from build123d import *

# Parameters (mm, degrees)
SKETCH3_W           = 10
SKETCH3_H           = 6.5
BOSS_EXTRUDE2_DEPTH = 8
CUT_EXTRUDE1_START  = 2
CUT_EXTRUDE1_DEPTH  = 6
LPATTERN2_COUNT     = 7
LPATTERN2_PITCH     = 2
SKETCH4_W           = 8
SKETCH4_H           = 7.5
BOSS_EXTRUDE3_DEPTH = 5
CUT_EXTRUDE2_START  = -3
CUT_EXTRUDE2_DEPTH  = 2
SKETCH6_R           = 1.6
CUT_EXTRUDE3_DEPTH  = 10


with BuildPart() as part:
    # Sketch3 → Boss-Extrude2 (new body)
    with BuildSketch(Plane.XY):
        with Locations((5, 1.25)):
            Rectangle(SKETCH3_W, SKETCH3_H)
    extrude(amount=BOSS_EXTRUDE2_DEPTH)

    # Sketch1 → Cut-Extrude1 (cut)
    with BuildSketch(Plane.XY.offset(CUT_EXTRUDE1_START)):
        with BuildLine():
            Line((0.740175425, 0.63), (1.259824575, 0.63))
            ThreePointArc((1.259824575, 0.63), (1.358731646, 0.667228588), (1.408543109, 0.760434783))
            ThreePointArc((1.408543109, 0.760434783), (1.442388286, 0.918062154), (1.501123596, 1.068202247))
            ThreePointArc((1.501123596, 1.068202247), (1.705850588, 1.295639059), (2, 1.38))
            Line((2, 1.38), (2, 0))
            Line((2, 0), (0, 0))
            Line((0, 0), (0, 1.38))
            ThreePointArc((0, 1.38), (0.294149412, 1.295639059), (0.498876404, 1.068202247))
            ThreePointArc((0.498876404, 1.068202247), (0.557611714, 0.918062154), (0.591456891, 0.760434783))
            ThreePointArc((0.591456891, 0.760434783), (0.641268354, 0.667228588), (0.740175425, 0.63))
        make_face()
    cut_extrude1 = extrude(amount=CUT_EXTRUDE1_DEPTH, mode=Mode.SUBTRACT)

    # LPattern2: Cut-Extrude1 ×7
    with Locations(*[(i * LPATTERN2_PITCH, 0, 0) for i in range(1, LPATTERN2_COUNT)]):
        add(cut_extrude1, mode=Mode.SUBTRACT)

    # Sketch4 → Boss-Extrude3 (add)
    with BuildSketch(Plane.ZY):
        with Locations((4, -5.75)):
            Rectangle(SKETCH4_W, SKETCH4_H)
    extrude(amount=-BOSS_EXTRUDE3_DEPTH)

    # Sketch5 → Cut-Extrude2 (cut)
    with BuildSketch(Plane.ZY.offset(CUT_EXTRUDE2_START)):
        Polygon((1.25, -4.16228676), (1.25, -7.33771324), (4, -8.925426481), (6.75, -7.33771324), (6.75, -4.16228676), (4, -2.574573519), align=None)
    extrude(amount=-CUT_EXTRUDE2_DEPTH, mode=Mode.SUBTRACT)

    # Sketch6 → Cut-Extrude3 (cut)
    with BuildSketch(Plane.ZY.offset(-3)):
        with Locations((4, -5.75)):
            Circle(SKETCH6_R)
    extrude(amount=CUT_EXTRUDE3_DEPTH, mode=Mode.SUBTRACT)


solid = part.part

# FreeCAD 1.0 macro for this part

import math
import FreeCAD as App
import Part
import Sketcher
from FreeCAD import Vector
Q = App.Units.Quantity

doc = App.newDocument("Part")
body = doc.addObject("PartDesign::Body", "Body")

# Sketch on XY plane
sketch1 = body.newObject("Sketcher::SketchObject", "Sketch")
sketch1.AttachmentSupport = (doc.getObject("XY_Plane"), [""])
sketch1.MapMode = "FlatFace"
sketch1.addGeometry(Part.LineSegment(Vector(0, 4, 0), Vector(0, -2, 0)), False)
sketch1.addGeometry(Part.LineSegment(Vector(0, -2, 0), Vector(10, -2, 0)), False)
sketch1.addGeometry(Part.LineSegment(Vector(10, -2, 0), Vector(10, 4, 0)), False)
sketch1.addGeometry(Part.LineSegment(Vector(10, 4, 0), Vector(0, 4, 0)), False)
sketch1.addConstraint(Sketcher.Constraint("Coincident", 0, 2, 1, 1))
sketch1.addConstraint(Sketcher.Constraint("Coincident", 1, 2, 2, 1))
sketch1.addConstraint(Sketcher.Constraint("Coincident", 2, 2, 3, 1))
sketch1.addConstraint(Sketcher.Constraint("Coincident", 3, 2, 0, 1))
sketch1.addConstraint(Sketcher.Constraint("Vertical", 0))
sketch1.addConstraint(Sketcher.Constraint("Horizontal", 1))
sketch1.addConstraint(Sketcher.Constraint("Vertical", 2))
sketch1.addConstraint(Sketcher.Constraint("Horizontal", 3))
sketch1.addConstraint(Sketcher.Constraint("PointOnObject", 0, 2, -2))
sketch1.addConstraint(Sketcher.Constraint("DistanceX", 1, 1, 1, 2, 10.0))
sketch1.addConstraint(Sketcher.Constraint("DistanceY", 0, 2, 0, 1, 6.5))
sketch1.addConstraint(Sketcher.Constraint("DistanceY", 0, 2, -1, 1, 2.0))
pad1 = body.newObject("PartDesign::Pad", "Pad")
pad1.Profile = sketch1
pad1.Length = 8

# Sketch on XY plane
sketch2 = body.newObject("Sketcher::SketchObject", "Sketch001")
sketch2.AttachmentSupport = (doc.getObject("XY_Plane"), [""])
sketch2.MapMode = "FlatFace"
sketch2.AttachmentOffset = App.Placement(Vector(0, 0, 2), App.Rotation())
sketch2.addGeometry(Part.LineSegment(Vector(1.26, 0.63, 0), Vector(0.74, 0.63, 0)), False)
sketch2.addGeometry(Part.ArcOfCircle(Part.Circle(Vector(0.74, 0.78, 0), Vector(0, 0, 1), 0.15), math.radians(-173), math.radians(-90)), False)
sketch2.addGeometry(Part.ArcOfCircle(Part.Circle(Vector(-0.4, 0.63, 0), Vector(0, 0, 1), 1), math.radians(7.49), math.radians(25.99)), False)
sketch2.addGeometry(Part.ArcOfCircle(Part.Circle(Vector(0, 0.83, 0), Vector(0, 0, 1), 0.55), math.radians(26), math.radians(90)), False)
sketch2.addGeometry(Part.LineSegment(Vector(0, 1.38, 0), Vector(0, 0, 0)), False)
sketch2.addGeometry(Part.LineSegment(Vector(0, 0, 0), Vector(2, 0, 0)), False)
sketch2.addGeometry(Part.LineSegment(Vector(2, 0, 0), Vector(2, 1.38, 0)), False)
sketch2.addGeometry(Part.ArcOfCircle(Part.Circle(Vector(2, 0.83, 0), Vector(0, 0, 1), 0.55), math.radians(90), math.radians(154)), False)
sketch2.addGeometry(Part.ArcOfCircle(Part.Circle(Vector(2.4, 0.63, 0), Vector(0, 0, 1), 1), math.radians(154.01), math.radians(172.51)), False)
sketch2.addGeometry(Part.ArcOfCircle(Part.Circle(Vector(1.26, 0.78, 0), Vector(0, 0, 1), 0.15), math.radians(-90), math.radians(-7)), False)
sketch2.addConstraint(Sketcher.Constraint("Tangent", 0, 2, 1, 2))
sketch2.addConstraint(Sketcher.Constraint("Tangent", 1, 1, 2, 1))
sketch2.addConstraint(Sketcher.Constraint("Tangent", 2, 2, 3, 1))
sketch2.addConstraint(Sketcher.Constraint("Coincident", 3, 2, 4, 1))
sketch2.addConstraint(Sketcher.Constraint("Coincident", 4, 2, 5, 1))
sketch2.addConstraint(Sketcher.Constraint("Coincident", 5, 2, 6, 1))
sketch2.addConstraint(Sketcher.Constraint("Coincident", 6, 2, 7, 1))
sketch2.addConstraint(Sketcher.Constraint("Tangent", 7, 2, 8, 1))
sketch2.addConstraint(Sketcher.Constraint("Tangent", 8, 2, 9, 2))
sketch2.addConstraint(Sketcher.Constraint("Tangent", 9, 1, 0, 1))
sketch2.addConstraint(Sketcher.Constraint("Horizontal", 0))
sketch2.addConstraint(Sketcher.Constraint("Vertical", 4))
sketch2.addConstraint(Sketcher.Constraint("Horizontal", 5))
sketch2.addConstraint(Sketcher.Constraint("Vertical", 6))
sketch2.addConstraint(Sketcher.Constraint("Coincident", 4, 2, -1, 1))
sketch2.addConstraint(Sketcher.Constraint("Equal", 3, 7))
sketch2.addConstraint(Sketcher.Constraint("Equal", 2, 8))
sketch2.addConstraint(Sketcher.Constraint("Equal", 1, 9))
sketch2.addConstraint(Sketcher.Constraint("PointOnObject", 3, 3, -2))
sketch2.addConstraint(Sketcher.Constraint("Horizontal", 3, 3, 7, 3))
sketch2.addConstraint(Sketcher.Constraint("Horizontal", 2, 3, 8, 3))
sketch2.addConstraint(Sketcher.Constraint("Horizontal", 8, 3, 0, 2))
sketch2.addConstraint(Sketcher.Constraint("Vertical", 7, 3, 5, 2))
sketch2.addConstraint(Sketcher.Constraint("Radius", 2, 1.0))
sketch2.addConstraint(Sketcher.Constraint("DistanceX", 5, 1, 5, 2, 2.0))
sketch2.addConstraint(Sketcher.Constraint("Radius", 1, 0.15))
sketch2.addConstraint(Sketcher.Constraint("Radius", 3, 0.555))
sketch2.addConstraint(Sketcher.Constraint("DistanceY", 4, 2, 4, 1, 1.38))
sketch2.addConstraint(Sketcher.Constraint("DistanceX", 2, 3, -1, 1, 0.4))
pocket1 = body.newObject("PartDesign::Pocket", "Pocket")
pocket1.Profile = sketch2
pocket1.Length = 6
pocket1.Reversed = True
doc.recompute()

linearpattern = body.newObject("PartDesign::LinearPattern", "LinearPattern")
linearpattern.Originals = [pocket1]
linearpattern.Direction = (doc.getObject("X_Axis"), [""])
linearpattern.Mode = "offset"
linearpattern.Offset = 2
linearpattern.Occurrences = 7
body.Tip = linearpattern

# Sketch on YZ plane
sketch3 = body.newObject("Sketcher::SketchObject", "Sketch002")
sketch3.AttachmentSupport = (doc.getObject("YZ_Plane"), [""])
sketch3.MapMode = "FlatFace"
sketch3.addGeometry(Part.LineSegment(Vector(-2, 0, 0), Vector(-10, 0, 0)), False)
sketch3.addGeometry(Part.LineSegment(Vector(-10, 0, 0), Vector(-10, 8, 0)), False)
sketch3.addGeometry(Part.LineSegment(Vector(-10, 8, 0), Vector(-2, 8, 0)), False)
sketch3.addGeometry(Part.LineSegment(Vector(-2, 8, 0), Vector(-2, 0, 0)), False)
sketch3.addConstraint(Sketcher.Constraint("Coincident", 0, 2, 1, 1))
sketch3.addConstraint(Sketcher.Constraint("Coincident", 1, 2, 2, 1))
sketch3.addConstraint(Sketcher.Constraint("Coincident", 2, 2, 3, 1))
sketch3.addConstraint(Sketcher.Constraint("Coincident", 3, 2, 0, 1))
sketch3.addConstraint(Sketcher.Constraint("Horizontal", 0))
sketch3.addConstraint(Sketcher.Constraint("Vertical", 1))
sketch3.addConstraint(Sketcher.Constraint("Horizontal", 2))
sketch3.addConstraint(Sketcher.Constraint("Vertical", 3))
sketch3.addConstraint(Sketcher.Constraint("PointOnObject", 0, 2, -1))
sketch3.addConstraint(Sketcher.Constraint("DistanceY", 1, 1, 1, 2, 8.0))
sketch3.addConstraint(Sketcher.Constraint("DistanceX", 0, 2, 0, 1, 7.5))
sketch3.addConstraint(Sketcher.Constraint("DistanceX", 2, 2, -1, 1, 2.0))
pad2 = body.newObject("PartDesign::Pad", "Pad001")
pad2.Profile = sketch3
pad2.Length = 5

# Sketch on YZ plane
sketch4 = body.newObject("Sketcher::SketchObject", "Sketch003")
sketch4.AttachmentSupport = (doc.getObject("YZ_Plane"), [""])
sketch4.MapMode = "FlatFace"
sketch4.AttachmentOffset = App.Placement(Vector(0, 0, 3), App.Rotation())
sketch4.addGeometry(Part.LineSegment(Vector(-4.2, 1.2, 0), Vector(-7.3, 1.2, 0)), False)
sketch4.addGeometry(Part.LineSegment(Vector(-7.3, 1.2, 0), Vector(-8.9, 4, 0)), False)
sketch4.addGeometry(Part.LineSegment(Vector(-8.9, 4, 0), Vector(-7.3, 6.8, 0)), False)
sketch4.addGeometry(Part.LineSegment(Vector(-7.3, 6.8, 0), Vector(-4.2, 6.8, 0)), False)
sketch4.addGeometry(Part.LineSegment(Vector(-4.2, 6.8, 0), Vector(-2.6, 4, 0)), False)
sketch4.addGeometry(Part.LineSegment(Vector(-2.6, 4, 0), Vector(-4.2, 1.2, 0)), False)
sketch4.addConstraint(Sketcher.Constraint("Coincident", 0, 2, 1, 1))
sketch4.addConstraint(Sketcher.Constraint("Coincident", 1, 2, 2, 1))
sketch4.addConstraint(Sketcher.Constraint("Coincident", 2, 2, 3, 1))
sketch4.addConstraint(Sketcher.Constraint("Coincident", 3, 2, 4, 1))
sketch4.addConstraint(Sketcher.Constraint("Coincident", 4, 2, 5, 1))
sketch4.addConstraint(Sketcher.Constraint("Coincident", 5, 2, 0, 1))
sketch4.addConstraint(Sketcher.Constraint("Horizontal", 0))
sketch4.addConstraint(Sketcher.Constraint("Horizontal", 3))
sketch4.addConstraint(Sketcher.Constraint("Parallel", 1, 4))
sketch4.addConstraint(Sketcher.Constraint("Parallel", 2, 5))
sketch4.addConstraint(Sketcher.Constraint("Horizontal", 1, 2, 4, 2))
sketch4.addConstraint(Sketcher.Constraint("Vertical", 0, 2, 2, 2))
sketch4.addConstraint(Sketcher.Constraint("Vertical", 3, 2, 5, 2))
sketch4.addConstraint(Sketcher.Constraint("Angle", 1, Q("120 deg")))
sketch4.addConstraint(Sketcher.Constraint("DistanceY", -1, 1, 1, 2, 4.0))
sketch4.addConstraint(Sketcher.Constraint("DistanceY", 0, 2, 2, 2, 5.5))
sketch4.addConstraint(Sketcher.Constraint("DistanceX", 0, 2, 0, 1, 3.175426))
sketch4.addConstraint(Sketcher.Constraint("DistanceX", 0, 2, -1, 1, 7.337713))
pocket2 = body.newObject("PartDesign::Pocket", "Pocket001")
pocket2.Profile = sketch4
pocket2.Length = 2
pocket2.Reversed = True

# Sketch on YZ plane
sketch5 = body.newObject("Sketcher::SketchObject", "Sketch004")
sketch5.AttachmentSupport = (doc.getObject("YZ_Plane"), [""])
sketch5.MapMode = "FlatFace"
sketch5.AttachmentOffset = App.Placement(Vector(0, 0, 3), App.Rotation())
sketch5.addGeometry(Part.Circle(Vector(-5.8, 4, 0), Vector(0, 0, 1), 1.6), False)
sketch5.addConstraint(Sketcher.Constraint("Diameter", 0, 3.2))
sketch5.addConstraint(Sketcher.Constraint("DistanceY", -1, 1, 0, 3, 4.0))
sketch5.addConstraint(Sketcher.Constraint("DistanceX", 0, 3, -1, 1, 5.75))
pocket3 = body.newObject("PartDesign::Pocket", "Pocket002")
pocket3.Profile = sketch5
pocket3.Length = 10

doc.recompute()
